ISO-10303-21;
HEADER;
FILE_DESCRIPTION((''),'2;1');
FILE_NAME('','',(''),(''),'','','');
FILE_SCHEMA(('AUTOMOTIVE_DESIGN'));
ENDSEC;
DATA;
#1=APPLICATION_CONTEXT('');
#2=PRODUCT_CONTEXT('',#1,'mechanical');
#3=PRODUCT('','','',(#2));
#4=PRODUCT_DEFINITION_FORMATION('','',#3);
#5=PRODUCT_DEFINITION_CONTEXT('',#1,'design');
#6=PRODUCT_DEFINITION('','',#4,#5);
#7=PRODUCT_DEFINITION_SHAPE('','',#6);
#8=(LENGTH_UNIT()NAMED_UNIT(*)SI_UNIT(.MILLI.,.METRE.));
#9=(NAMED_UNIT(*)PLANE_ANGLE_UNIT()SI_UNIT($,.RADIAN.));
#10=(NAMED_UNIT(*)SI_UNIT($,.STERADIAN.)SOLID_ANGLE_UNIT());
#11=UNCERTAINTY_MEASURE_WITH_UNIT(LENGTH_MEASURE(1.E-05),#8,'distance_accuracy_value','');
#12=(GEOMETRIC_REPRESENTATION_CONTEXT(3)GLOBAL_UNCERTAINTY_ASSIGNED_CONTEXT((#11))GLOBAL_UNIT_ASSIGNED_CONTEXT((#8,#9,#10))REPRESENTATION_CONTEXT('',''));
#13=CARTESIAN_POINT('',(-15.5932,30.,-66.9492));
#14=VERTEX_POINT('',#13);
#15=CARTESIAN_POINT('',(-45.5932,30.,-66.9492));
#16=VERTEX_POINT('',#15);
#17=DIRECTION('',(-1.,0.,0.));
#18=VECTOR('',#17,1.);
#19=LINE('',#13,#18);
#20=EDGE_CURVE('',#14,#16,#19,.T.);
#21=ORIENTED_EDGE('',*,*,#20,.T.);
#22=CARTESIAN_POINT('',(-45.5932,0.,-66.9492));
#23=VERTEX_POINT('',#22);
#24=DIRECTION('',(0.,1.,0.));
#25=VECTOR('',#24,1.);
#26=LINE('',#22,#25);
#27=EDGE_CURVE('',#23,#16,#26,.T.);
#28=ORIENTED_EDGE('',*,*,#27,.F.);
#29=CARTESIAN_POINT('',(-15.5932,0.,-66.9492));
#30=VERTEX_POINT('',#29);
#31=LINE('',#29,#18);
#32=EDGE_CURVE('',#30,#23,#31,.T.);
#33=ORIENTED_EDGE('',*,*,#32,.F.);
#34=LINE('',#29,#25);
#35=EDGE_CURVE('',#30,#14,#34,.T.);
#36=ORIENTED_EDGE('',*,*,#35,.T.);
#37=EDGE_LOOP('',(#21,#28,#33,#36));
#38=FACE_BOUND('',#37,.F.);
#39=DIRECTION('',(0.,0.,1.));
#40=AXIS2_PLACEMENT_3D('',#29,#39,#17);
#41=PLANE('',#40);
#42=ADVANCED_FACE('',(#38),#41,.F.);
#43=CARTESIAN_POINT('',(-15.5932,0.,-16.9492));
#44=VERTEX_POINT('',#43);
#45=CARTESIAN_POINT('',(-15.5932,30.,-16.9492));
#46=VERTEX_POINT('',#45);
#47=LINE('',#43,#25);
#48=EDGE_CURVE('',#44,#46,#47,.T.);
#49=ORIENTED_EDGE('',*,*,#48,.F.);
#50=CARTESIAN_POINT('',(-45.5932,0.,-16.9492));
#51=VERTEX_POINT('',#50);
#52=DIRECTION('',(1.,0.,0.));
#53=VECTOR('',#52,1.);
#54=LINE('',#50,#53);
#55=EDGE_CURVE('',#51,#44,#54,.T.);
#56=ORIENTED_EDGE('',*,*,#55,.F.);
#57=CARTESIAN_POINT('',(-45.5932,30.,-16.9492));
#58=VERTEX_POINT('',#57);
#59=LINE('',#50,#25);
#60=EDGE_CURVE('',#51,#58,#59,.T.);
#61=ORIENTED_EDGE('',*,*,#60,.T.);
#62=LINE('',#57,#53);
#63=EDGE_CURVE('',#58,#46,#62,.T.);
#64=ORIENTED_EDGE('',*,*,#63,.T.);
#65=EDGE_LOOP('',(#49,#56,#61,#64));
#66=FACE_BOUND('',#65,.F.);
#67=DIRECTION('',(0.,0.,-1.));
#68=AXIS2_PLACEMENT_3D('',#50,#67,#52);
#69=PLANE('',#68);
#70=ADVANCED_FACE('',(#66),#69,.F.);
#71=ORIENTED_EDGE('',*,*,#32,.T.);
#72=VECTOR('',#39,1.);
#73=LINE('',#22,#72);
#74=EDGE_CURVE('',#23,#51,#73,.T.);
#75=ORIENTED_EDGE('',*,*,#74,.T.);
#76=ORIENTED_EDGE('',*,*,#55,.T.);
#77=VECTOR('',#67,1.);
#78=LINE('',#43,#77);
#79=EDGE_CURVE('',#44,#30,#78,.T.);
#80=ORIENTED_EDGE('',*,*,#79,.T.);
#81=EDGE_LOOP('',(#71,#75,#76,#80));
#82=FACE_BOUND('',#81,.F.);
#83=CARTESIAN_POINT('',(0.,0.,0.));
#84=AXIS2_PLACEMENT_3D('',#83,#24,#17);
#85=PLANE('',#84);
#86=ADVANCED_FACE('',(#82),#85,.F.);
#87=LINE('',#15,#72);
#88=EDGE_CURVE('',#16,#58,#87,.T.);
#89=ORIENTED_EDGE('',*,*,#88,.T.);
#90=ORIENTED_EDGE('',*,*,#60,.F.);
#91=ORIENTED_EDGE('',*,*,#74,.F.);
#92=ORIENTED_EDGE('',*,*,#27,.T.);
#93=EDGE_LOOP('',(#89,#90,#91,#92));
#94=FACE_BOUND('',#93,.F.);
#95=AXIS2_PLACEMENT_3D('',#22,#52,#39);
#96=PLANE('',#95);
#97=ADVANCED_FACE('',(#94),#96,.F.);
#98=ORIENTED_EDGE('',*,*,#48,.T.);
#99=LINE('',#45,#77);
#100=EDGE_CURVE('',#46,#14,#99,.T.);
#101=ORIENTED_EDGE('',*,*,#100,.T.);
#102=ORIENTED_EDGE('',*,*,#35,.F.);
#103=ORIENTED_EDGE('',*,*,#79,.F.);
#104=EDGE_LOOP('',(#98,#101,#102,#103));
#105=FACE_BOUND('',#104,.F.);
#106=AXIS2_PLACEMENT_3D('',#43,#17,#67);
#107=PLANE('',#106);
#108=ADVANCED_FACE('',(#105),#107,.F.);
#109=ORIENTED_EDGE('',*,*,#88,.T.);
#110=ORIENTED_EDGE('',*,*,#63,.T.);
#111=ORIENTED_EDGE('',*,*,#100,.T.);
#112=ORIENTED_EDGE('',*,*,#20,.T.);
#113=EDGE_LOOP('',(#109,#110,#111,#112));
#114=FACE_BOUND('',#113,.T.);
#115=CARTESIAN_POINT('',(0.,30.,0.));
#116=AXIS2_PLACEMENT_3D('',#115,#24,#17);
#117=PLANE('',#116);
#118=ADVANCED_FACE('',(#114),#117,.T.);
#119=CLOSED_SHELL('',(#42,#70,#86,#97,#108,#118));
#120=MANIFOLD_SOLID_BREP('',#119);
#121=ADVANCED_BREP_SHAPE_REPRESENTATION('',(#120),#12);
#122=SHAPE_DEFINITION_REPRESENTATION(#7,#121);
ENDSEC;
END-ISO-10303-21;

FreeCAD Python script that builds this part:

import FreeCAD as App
import Part
import Sketcher
from FreeCAD import Vector


def add_polygon(sketch, points):
    """Adds a closed chain of lines whose ends are joined by coincident constraints."""
    first, n = sketch.GeometryCount, len(points)
    for a, b in zip(points, points[1:] + points[:1]):
        sketch.addGeometry(Part.LineSegment(App.Vector(*a, 0), App.Vector(*b, 0)), False)
    for i in range(n):
        sketch.addConstraint(Sketcher.Constraint("Coincident", first + i, 2, first + (i + 1) % n, 1))

doc = App.newDocument("Part")
body = doc.addObject("PartDesign::Body", "Body")

sketch1 = doc.addObject("Sketcher::SketchObject", "Sketch")
body.addObject(sketch1)
sketch1.AttachmentSupport = (doc.XZ_Plane, [""])
sketch1.MapMode = "FlatFace"
add_polygon(sketch1, [(-45.5932, -66.9492), (-45.5932, -16.9492), (-15.5932, -16.9492), (-15.5932, -66.9492)])
sketch1.addConstraint([
    Sketcher.Constraint("Vertical", 0),
    Sketcher.Constraint("Horizontal", 1),
    Sketcher.Constraint("Vertical", 2),
    Sketcher.Constraint("Horizontal", 3),
    Sketcher.Constraint("DistanceX", 1, 1, 1, 2, 30.0),
    Sketcher.Constraint("DistanceY", 0, 1, 0, 2, 50.0),
    Sketcher.Constraint("DistanceX", 0, 2, -1, 1, 45.5932),
    Sketcher.Constraint("DistanceY", 0, 2, -1, 1, 16.9492),
])
pad1 = doc.addObject("PartDesign::Pad", "Pad")
body.addObject(pad1)
pad1.Profile = sketch1
pad1.Length = 30
pad1.Reversed = True

doc.recompute()
